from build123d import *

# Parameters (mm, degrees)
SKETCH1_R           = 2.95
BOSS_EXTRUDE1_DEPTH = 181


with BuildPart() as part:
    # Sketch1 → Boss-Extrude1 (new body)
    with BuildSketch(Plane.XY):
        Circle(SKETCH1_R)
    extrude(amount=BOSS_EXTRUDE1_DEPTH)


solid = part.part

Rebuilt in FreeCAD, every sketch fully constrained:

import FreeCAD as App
import Part
import Sketcher
from FreeCAD import Vector
Q = App.Units.Quantity

doc = App.newDocument("Part")
body = doc.addObject("PartDesign::Body", "Body")

# Sketch on XY plane
sketch1 = body.newObject("Sketcher::SketchObject", "Sketch")
sketch1.AttachmentSupport = (doc.getObject("XY_Plane"), [""])
sketch1.MapMode = "FlatFace"
sketch1.addGeometry(Part.Circle(Vector(0, 0, 0), Vector(0, 0, 1), 3), False)
sketch1.addConstraint([
    Sketcher.Constraint("Coincident", 0, 3, -1, 1),
    Sketcher.Constraint("Diameter", 0, Q("5.9 mm")),
])
pad1 = body.newObject("PartDesign::Pad", "Pad")
pad1.Profile = sketch1
pad1.Length = 181

doc.recompute()
